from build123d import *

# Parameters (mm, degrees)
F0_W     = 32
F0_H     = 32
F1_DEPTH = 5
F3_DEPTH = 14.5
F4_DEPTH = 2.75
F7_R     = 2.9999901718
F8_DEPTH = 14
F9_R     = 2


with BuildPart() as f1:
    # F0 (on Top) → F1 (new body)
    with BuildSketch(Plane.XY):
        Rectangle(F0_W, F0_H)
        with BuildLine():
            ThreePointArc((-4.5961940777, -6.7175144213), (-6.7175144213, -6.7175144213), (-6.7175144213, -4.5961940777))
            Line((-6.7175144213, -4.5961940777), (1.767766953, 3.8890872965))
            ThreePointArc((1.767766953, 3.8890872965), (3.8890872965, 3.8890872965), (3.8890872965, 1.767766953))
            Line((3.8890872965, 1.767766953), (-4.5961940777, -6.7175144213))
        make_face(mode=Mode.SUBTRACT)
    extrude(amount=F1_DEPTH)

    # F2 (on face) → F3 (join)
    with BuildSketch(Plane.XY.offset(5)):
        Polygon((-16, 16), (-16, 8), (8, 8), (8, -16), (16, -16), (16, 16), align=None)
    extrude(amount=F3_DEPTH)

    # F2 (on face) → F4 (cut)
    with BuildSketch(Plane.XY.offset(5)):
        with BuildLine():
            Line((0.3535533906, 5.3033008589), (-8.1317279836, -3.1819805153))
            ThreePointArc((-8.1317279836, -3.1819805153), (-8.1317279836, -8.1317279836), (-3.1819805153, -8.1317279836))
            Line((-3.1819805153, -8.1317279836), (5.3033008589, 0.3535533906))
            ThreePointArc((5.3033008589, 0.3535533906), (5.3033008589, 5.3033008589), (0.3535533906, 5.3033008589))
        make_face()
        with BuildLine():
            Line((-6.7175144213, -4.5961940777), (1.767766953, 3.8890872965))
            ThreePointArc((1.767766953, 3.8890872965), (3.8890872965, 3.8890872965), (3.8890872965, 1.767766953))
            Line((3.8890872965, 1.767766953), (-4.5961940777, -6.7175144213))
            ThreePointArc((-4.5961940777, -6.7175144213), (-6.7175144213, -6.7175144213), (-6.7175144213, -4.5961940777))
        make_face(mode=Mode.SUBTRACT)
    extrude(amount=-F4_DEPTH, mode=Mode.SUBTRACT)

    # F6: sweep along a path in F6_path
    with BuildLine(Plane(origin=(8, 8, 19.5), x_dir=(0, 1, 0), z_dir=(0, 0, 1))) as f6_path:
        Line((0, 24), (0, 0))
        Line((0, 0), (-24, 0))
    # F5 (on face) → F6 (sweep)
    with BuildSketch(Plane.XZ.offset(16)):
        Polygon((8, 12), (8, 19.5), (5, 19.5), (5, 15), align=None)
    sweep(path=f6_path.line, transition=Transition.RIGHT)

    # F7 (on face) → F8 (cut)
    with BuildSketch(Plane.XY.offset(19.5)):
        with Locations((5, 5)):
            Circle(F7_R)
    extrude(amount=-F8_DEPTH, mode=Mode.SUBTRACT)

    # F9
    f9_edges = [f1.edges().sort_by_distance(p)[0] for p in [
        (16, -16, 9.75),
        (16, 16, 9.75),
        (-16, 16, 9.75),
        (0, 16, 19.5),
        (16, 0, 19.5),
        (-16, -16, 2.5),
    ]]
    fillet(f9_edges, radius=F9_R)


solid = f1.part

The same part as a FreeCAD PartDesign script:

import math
import FreeCAD as App
import Part
import Sketcher

V = App.Vector
Q = App.Units.Quantity


def edges_at(feature, points):
    """Names of the edges that pass closest to the given points."""
    edges = feature.Shape.Edges
    near = lambda p: min(range(len(edges)), key=lambda i: edges[i].distToShape(Part.Vertex(*p))[0])
    return sorted({f"Edge{near(p) + 1}" for p in points})

doc = App.newDocument("Part")
body = doc.addObject("PartDesign::Body", "Body")

sketch1 = body.newObject("Sketcher::SketchObject", "Sketch")
sketch1.AttachmentSupport = (doc.getObject("XY_Plane"), [""])
sketch1.MapMode = "FlatFace"
sketch1.addGeometry([
    Part.LineSegment(V(-16, 16, 0), V(-16, -16, 0)),
    Part.LineSegment(V(-16, -16, 0), V(16, -16, 0)),
    Part.LineSegment(V(16, -16, 0), V(16, 16, 0)),
    Part.LineSegment(V(16, 16, 0), V(-16, 16, 0)),
    Part.LineSegment(V(3.9, 1.8, 0), V(-4.6, -6.7, 0)),
    Part.ArcOfCircle(Part.Circle(V(-5.7, -5.7, 0), V(0, 0, 1), 1.5), math.radians(135), math.radians(315)),
    Part.LineSegment(V(-6.7, -4.6, 0), V(1.8, 3.9, 0)),
    Part.ArcOfCircle(Part.Circle(V(2.8, 2.8, 0), V(0, 0, 1), 1.5), math.radians(-45), math.radians(135)),
], False)
sketch1.addConstraint([
    Sketcher.Constraint("Coincident", 0, 2, 1, 1),
    Sketcher.Constraint("Coincident", 1, 2, 2, 1),
    Sketcher.Constraint("Coincident", 2, 2, 3, 1),
    Sketcher.Constraint("Coincident", 3, 2, 0, 1),
    Sketcher.Constraint("Tangent", 4, 2, 5, 2),
    Sketcher.Constraint("Tangent", 5, 1, 6, 1),
    Sketcher.Constraint("Tangent", 6, 2, 7, 2),
    Sketcher.Constraint("Tangent", 7, 1, 4, 1),
    Sketcher.Constraint("Vertical", 0),
    Sketcher.Constraint("Horizontal", 1),
    Sketcher.Constraint("Vertical", 2),
    Sketcher.Constraint("Horizontal", 3),
    Sketcher.Constraint("Equal", 5, 7),
    Sketcher.Constraint("Symmetric", 0, 2, 2, 2, -1, 1),
    Sketcher.Constraint("Equal", 3, 0),
    Sketcher.Constraint("Radius", 5, Q("1.5 mm")),
    Sketcher.Constraint("DistanceX", 1, 1, 1, 2, Q("32 mm")),
    Sketcher.Constraint("Angle", 4, Q("-135 deg")),
    Sketcher.Constraint("Distance", 4, Q("12 mm")),
    Sketcher.Constraint("DistanceX", 5, 3, -1, 1, Q("5.656854 mm")),
    Sketcher.Constraint("DistanceY", 5, 3, -1, 1, Q("5.656854 mm")),
])
pad1 = body.newObject("PartDesign::Pad", "Pad")
pad1.Profile = sketch1
pad1.Length = 5

sketch2 = body.newObject("Sketcher::SketchObject", "Sketch001")
sketch2.AttachmentSupport = (doc.getObject("XY_Plane"), [""])
sketch2.MapMode = "FlatFace"
sketch2.AttachmentOffset = App.Placement(V(0, 0, 5), App.Rotation())
sketch2.addGeometry([
    Part.LineSegment(V(-16, 16, 0), V(-16, 8, 0)),
    Part.LineSegment(V(-16, 8, 0), V(8, 8, 0)),
    Part.LineSegment(V(8, 8, 0), V(8, -16, 0)),
    Part.LineSegment(V(8, -16, 0), V(16, -16, 0)),
    Part.LineSegment(V(16, -16, 0), V(16, 16, 0)),
    Part.LineSegment(V(16, 16, 0), V(-16, 16, 0)),
], False)
sketch2.addConstraint([
    Sketcher.Constraint("Coincident", 0, 2, 1, 1),
    Sketcher.Constraint("Coincident", 1, 2, 2, 1),
    Sketcher.Constraint("Coincident", 2, 2, 3, 1),
    Sketcher.Constraint("Coincident", 3, 2, 4, 1),
    Sketcher.Constraint("Coincident", 4, 2, 5, 1),
    Sketcher.Constraint("Coincident", 5, 2, 0, 1),
    Sketcher.Constraint("Vertical", 0),
    Sketcher.Constraint("Horizontal", 1),
    Sketcher.Constraint("Vertical", 2),
    Sketcher.Constraint("Horizontal", 3),
    Sketcher.Constraint("Vertical", 4),
    Sketcher.Constraint("Horizontal", 5),
    Sketcher.Constraint("Symmetric", 3, 2, 5, 2, -1, 1),
    Sketcher.Constraint("Equal", 3, 0),
    Sketcher.Constraint("Equal", 1, 2),
    Sketcher.Constraint("DistanceX", 1, 1, 1, 2, Q("24 mm")),
    Sketcher.Constraint("DistanceX", 3, 1, 3, 2, Q("8 mm")),
])
pad2 = body.newObject("PartDesign::Pad", "Pad001")
pad2.Profile = sketch2
pad2.Length = 14.5

sketch3 = body.newObject("Sketcher::SketchObject", "Sketch002")
sketch3.AttachmentSupport = (doc.getObject("XY_Plane"), [""])
sketch3.MapMode = "FlatFace"
sketch3.AttachmentOffset = App.Placement(V(0, 0, 5), App.Rotation())
sketch3.addGeometry([
    Part.LineSegment(V(0.4, 5.3, 0), V(-8.1, -3.2, 0)),
    Part.ArcOfCircle(Part.Circle(V(-5.7, -5.7, 0), V(0, 0, 1), 3.5), math.radians(135), math.radians(315)),
    Part.LineSegment(V(-3.2, -8.1, 0), V(5.3, 0.4, 0)),
    Part.ArcOfCircle(Part.Circle(V(2.8, 2.8, 0), V(0, 0, 1), 3.5), math.radians(-45), math.radians(135)),
    Part.ArcOfCircle(Part.Circle(V(-5.7, -5.7, 0), V(0, 0, 1), 1.5), math.radians(135), math.radians(315)),
    Part.LineSegment(V(-6.7, -4.6, 0), V(1.8, 3.9, 0)),
    Part.ArcOfCircle(Part.Circle(V(2.8, 2.8, 0), V(0, 0, 1), 1.5), math.radians(-45), math.radians(135)),
    Part.LineSegment(V(3.9, 1.8, 0), V(-4.6, -6.7, 0)),
], False)
sketch3.addConstraint([
    Sketcher.Constraint("Tangent", 0, 2, 1, 1),
    Sketcher.Constraint("Tangent", 1, 2, 2, 1),
    Sketcher.Constraint("Tangent", 2, 2, 3, 1),
    Sketcher.Constraint("Tangent", 3, 2, 0, 1),
    Sketcher.Constraint("Tangent", 4, 1, 5, 1),
    Sketcher.Constraint("Tangent", 5, 2, 6, 2),
    Sketcher.Constraint("Tangent", 6, 1, 7, 1),
    Sketcher.Constraint("Tangent", 7, 2, 4, 2),
    Sketcher.Constraint("Coincident", 4, 3, 1, 3),
    Sketcher.Constraint("Coincident", 6, 3, 3, 3),
    Sketcher.Constraint("Equal", 1, 3),
    Sketcher.Constraint("Equal", 4, 6),
    Sketcher.Constraint("Radius", 1, Q("3.5 mm")),
    Sketcher.Constraint("Radius", 4, Q("1.5 mm")),
    Sketcher.Constraint("Angle", 0, Q("-135 deg")),
    Sketcher.Constraint("Distance", 0, Q("12 mm")),
    Sketcher.Constraint("DistanceX", -1, 1, 2, 2, Q("5.303301 mm")),
    Sketcher.Constraint("DistanceY", -1, 1, 3, 2, Q("5.303301 mm")),
])
pocket1 = body.newObject("PartDesign::Pocket", "Pocket")
pocket1.Profile = sketch3
pocket1.Length = 2.75

sketch4 = body.newObject("Sketcher::SketchObject", "Sketch003")
sketch4.AttachmentSupport = (doc.getObject("XZ_Plane"), [""])
sketch4.MapMode = "FlatFace"
sketch4.AttachmentOffset = App.Placement(V(0, 0, 16), App.Rotation())
sketch4.addGeometry([
    Part.LineSegment(V(8, 12, 0), V(8, 19.5, 0)),
    Part.LineSegment(V(8, 19.5, 0), V(5, 19.5, 0)),
    Part.LineSegment(V(5, 19.5, 0), V(5, 15, 0)),
    Part.LineSegment(V(5, 15, 0), V(8, 12, 0)),
], False)
sketch4.addConstraint([
    Sketcher.Constraint("Coincident", 0, 2, 1, 1),
    Sketcher.Constraint("Coincident", 1, 2, 2, 1),
    Sketcher.Constraint("Coincident", 2, 2, 3, 1),
    Sketcher.Constraint("Coincident", 3, 2, 0, 1),
    Sketcher.Constraint("Vertical", 0),
    Sketcher.Constraint("Horizontal", 1),
    Sketcher.Constraint("Vertical", 2),
    Sketcher.Constraint("DistanceX", 1, 2, 1, 1, Q("3 mm")),
    Sketcher.Constraint("Angle", 3, Q("-45 deg")),
    Sketcher.Constraint("DistanceY", 0, 1, 0, 2, Q("7.5 mm")),
    Sketcher.Constraint("DistanceX", -1, 1, 0, 2, Q("8 mm")),
    Sketcher.Constraint("DistanceY", -1, 1, 2, 2, Q("15 mm")),
])

sketch5 = body.newObject("Sketcher::SketchObject", "Sketch004")
sketch5.AttachmentSupport = (doc.getObject("XY_Plane"), [""])
sketch5.MapMode = "FlatFace"
sketch5.AttachmentOffset = App.Placement(V(0, 0, 19.5), App.Rotation())
sketch5.addGeometry([
    Part.LineSegment(V(-16, 8, 0), V(8, 8, 0)),
    Part.LineSegment(V(8, 8, 0), V(8, -16, 0)),
], False)
sketch5.addConstraint([
    Sketcher.Constraint("Coincident", 0, 2, 1, 1),
    Sketcher.Constraint("Horizontal", 0),
    Sketcher.Constraint("Vertical", 1),
    Sketcher.Constraint("Equal", 0, 1),
    Sketcher.Constraint("DistanceX", 0, 1, 0, 2, Q("24 mm")),
    Sketcher.Constraint("DistanceX", 0, 1, -1, 1, Q("16 mm")),
    Sketcher.Constraint("DistanceY", -1, 1, 0, 1, Q("8 mm")),
])
doc.recompute()

additivepipe = body.newObject("PartDesign::AdditivePipe", "AdditivePipe")
additivepipe.Profile = sketch4
additivepipe.Spine = (sketch5, ["Edge1", "Edge2"])
additivepipe.Transition = "Right corner"

sketch6 = body.newObject("Sketcher::SketchObject", "Sketch005")
sketch6.AttachmentSupport = (doc.getObject("XY_Plane"), [""])
sketch6.MapMode = "FlatFace"
sketch6.AttachmentOffset = App.Placement(V(0, 0, 19.5), App.Rotation())
sketch6.addGeometry(Part.Circle(V(5, 5, 0), V(0, 0, 1), 3), False)
sketch6.addConstraint([
    Sketcher.Constraint("DistanceX", -1, 1, 0, 3, Q("5 mm")),
    Sketcher.Constraint("DistanceY", -1, 1, 0, 3, Q("5 mm")),
    Sketcher.Constraint("Diameter", 0, Q("5.99998 mm")),
])
pocket2 = body.newObject("PartDesign::Pocket", "Pocket001")
pocket2.Profile = sketch6
pocket2.Length = 14
doc.recompute()

fillet = body.newObject("PartDesign::Fillet", "Fillet")
fillet.Base = (pocket2, edges_at(pocket2, [
    (16, -16, 9.75),
    (16, 16, 9.75),
    (-16, 16, 9.75),
    (0, 16, 19.5),
    (16, 0, 19.5),
    (-16, -16, 2.5),
]))
fillet.Radius = 2

doc.recompute()
